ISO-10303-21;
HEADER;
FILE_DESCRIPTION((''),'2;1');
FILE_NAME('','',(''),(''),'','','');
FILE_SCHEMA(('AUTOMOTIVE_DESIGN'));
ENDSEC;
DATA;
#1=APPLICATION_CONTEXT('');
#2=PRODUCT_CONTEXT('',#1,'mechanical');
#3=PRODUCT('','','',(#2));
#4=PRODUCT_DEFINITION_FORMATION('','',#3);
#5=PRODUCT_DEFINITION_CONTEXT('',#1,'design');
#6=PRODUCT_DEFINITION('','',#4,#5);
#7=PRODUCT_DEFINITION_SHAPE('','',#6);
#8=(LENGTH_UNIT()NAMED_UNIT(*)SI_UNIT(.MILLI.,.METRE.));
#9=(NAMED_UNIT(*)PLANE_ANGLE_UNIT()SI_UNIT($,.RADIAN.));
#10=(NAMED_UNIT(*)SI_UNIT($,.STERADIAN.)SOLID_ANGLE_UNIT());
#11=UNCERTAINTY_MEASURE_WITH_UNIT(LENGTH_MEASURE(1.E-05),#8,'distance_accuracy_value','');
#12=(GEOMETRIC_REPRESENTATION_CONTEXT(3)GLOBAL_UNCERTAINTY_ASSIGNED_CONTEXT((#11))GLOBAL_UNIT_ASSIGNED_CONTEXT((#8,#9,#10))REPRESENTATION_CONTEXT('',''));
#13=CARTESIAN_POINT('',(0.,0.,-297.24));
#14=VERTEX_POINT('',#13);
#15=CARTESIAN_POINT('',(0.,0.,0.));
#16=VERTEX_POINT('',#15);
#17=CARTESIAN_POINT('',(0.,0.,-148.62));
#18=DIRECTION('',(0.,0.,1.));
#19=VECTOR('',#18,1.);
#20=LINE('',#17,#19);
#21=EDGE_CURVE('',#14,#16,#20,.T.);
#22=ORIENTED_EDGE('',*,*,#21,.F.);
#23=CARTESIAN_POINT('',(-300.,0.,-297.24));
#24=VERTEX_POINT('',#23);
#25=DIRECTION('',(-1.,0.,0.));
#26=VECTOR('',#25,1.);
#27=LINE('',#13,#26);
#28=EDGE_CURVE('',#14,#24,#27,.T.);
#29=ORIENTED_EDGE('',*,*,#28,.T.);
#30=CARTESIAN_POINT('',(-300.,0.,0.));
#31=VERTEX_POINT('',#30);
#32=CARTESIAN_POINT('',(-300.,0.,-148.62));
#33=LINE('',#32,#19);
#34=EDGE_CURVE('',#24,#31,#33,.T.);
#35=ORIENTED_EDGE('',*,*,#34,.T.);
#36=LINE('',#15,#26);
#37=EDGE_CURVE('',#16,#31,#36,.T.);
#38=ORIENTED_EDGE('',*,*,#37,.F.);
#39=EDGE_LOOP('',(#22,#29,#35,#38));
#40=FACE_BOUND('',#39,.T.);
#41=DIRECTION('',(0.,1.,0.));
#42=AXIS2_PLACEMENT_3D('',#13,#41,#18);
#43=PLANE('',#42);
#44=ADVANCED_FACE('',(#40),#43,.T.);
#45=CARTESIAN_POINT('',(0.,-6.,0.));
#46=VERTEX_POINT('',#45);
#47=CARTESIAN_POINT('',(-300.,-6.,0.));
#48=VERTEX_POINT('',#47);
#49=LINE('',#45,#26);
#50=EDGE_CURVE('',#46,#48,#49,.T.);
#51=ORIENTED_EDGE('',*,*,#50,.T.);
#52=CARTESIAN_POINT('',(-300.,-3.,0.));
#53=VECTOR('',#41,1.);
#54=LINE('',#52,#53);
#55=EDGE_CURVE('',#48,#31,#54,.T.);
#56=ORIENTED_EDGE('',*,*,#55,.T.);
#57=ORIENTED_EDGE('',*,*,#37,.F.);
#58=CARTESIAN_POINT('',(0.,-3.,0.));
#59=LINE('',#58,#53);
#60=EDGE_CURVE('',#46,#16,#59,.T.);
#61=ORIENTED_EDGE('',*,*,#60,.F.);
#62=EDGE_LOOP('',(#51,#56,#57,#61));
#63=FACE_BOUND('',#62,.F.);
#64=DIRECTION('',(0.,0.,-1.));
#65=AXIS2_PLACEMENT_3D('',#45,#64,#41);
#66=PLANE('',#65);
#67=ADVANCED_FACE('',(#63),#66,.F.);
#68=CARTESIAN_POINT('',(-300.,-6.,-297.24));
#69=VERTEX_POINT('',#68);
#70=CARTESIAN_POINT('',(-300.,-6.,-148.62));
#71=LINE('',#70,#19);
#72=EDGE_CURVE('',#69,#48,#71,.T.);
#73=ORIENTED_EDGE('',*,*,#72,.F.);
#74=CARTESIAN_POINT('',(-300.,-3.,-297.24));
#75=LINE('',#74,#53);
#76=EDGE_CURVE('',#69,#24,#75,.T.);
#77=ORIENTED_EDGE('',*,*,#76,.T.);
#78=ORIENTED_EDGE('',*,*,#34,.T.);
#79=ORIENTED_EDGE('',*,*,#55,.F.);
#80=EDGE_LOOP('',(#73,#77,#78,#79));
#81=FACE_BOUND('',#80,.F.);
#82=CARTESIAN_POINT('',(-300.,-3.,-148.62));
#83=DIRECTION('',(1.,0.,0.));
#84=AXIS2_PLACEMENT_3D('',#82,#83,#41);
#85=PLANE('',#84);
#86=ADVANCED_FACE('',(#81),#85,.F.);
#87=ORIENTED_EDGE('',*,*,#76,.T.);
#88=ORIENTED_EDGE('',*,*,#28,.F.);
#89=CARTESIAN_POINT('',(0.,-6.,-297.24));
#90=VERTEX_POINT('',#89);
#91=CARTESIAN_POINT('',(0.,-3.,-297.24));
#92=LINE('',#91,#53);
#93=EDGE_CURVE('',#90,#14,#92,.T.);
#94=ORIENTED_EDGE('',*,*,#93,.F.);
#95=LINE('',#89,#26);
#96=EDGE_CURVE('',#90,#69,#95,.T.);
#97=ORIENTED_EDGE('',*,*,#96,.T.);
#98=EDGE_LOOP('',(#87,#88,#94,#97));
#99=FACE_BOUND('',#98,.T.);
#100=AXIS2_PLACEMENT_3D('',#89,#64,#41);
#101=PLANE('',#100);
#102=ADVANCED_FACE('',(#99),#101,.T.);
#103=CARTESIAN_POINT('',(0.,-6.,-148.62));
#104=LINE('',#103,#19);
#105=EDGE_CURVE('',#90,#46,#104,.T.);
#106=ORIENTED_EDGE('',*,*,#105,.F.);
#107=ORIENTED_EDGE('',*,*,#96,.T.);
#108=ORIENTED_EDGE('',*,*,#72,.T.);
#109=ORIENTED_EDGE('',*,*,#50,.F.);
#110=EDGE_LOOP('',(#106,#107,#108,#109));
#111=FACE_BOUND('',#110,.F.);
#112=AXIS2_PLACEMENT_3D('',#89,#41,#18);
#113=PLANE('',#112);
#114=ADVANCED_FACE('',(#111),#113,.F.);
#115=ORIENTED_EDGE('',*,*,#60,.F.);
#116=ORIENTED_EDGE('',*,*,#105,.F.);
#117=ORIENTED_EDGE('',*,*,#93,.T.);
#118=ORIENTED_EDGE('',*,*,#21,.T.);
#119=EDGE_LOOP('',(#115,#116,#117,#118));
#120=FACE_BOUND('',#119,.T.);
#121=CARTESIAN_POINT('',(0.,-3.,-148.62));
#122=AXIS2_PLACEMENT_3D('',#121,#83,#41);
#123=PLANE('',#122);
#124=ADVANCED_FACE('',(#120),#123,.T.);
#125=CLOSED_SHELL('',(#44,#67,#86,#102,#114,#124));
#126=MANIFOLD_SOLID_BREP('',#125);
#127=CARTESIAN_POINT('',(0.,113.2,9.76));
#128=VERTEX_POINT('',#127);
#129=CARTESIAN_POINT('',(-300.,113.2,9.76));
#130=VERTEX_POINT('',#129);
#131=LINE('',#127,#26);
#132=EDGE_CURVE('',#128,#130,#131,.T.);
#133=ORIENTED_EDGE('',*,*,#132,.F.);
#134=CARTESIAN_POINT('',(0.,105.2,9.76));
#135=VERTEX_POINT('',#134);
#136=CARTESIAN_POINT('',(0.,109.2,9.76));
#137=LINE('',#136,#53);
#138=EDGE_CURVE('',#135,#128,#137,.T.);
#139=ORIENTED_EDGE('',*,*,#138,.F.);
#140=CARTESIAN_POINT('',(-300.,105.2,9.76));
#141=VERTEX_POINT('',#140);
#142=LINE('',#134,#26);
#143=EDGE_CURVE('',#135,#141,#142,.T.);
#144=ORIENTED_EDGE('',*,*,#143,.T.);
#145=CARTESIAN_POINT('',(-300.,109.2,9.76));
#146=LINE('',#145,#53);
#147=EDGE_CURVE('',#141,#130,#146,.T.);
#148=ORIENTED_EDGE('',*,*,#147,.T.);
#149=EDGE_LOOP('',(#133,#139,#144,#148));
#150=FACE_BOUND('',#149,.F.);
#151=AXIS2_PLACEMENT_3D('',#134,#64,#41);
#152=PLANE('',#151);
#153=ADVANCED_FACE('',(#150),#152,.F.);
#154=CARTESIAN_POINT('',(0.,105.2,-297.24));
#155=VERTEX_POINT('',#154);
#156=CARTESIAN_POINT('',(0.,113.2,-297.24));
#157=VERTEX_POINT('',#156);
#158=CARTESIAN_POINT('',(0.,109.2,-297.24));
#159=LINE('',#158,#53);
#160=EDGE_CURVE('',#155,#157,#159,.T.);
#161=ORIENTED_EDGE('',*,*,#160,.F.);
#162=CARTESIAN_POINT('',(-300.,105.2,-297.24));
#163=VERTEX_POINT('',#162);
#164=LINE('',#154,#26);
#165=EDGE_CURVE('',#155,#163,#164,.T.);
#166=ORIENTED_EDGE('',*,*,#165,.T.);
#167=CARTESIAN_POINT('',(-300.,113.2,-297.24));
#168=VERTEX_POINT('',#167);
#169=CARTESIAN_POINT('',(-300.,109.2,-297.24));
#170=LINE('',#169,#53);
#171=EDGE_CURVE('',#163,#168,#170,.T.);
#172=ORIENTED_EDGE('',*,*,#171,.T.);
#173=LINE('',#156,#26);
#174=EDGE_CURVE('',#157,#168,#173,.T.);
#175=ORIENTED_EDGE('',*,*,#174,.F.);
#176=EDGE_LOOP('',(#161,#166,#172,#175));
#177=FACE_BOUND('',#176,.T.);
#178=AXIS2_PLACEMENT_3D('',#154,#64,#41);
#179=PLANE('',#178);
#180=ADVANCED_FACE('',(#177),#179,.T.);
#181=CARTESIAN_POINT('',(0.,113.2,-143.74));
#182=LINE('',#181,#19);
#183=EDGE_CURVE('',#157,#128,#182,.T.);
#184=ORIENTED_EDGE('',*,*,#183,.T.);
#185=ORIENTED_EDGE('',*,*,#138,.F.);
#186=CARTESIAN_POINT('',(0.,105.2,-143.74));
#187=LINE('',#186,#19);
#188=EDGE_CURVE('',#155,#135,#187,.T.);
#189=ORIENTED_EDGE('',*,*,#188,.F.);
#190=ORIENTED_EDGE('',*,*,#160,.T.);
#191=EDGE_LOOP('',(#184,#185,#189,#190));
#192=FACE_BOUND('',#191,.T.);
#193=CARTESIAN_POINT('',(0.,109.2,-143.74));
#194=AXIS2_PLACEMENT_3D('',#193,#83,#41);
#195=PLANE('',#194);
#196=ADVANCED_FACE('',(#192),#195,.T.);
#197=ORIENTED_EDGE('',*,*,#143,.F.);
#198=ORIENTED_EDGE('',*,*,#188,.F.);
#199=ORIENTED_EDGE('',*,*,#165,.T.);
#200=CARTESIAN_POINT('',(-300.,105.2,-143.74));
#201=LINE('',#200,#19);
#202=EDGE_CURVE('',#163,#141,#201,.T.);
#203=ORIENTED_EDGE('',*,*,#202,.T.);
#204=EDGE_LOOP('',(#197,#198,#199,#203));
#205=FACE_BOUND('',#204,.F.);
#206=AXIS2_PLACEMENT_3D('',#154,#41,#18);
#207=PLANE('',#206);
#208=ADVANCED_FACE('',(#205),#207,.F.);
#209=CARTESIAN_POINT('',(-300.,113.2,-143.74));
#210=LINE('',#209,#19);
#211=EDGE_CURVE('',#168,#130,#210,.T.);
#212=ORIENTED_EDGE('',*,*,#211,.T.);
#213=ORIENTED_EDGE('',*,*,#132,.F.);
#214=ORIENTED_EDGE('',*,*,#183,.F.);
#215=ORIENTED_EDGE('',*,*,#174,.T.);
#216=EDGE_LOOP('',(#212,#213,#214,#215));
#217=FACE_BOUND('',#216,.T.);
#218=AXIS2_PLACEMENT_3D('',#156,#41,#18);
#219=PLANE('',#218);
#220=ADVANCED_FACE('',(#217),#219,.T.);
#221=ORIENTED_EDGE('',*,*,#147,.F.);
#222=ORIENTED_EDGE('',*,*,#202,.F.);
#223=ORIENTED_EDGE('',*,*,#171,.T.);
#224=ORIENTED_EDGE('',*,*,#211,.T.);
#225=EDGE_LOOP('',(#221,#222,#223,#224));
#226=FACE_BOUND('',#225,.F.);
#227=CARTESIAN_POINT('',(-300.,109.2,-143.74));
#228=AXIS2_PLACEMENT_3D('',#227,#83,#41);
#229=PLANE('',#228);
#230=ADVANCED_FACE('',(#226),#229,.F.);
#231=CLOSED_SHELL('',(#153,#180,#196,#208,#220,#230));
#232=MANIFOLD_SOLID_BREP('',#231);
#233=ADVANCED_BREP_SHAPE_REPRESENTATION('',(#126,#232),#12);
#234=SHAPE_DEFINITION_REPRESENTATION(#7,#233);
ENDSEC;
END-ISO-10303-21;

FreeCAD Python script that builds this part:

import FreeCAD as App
import Part
import Sketcher

V = App.Vector


def add_polygon(sketch, points):
    """Adds a closed chain of lines whose ends are joined by coincident constraints."""
    first, n = sketch.GeometryCount, len(points)
    for a, b in zip(points, points[1:] + points[:1]):
        sketch.addGeometry(Part.LineSegment(App.Vector(*a, 0), App.Vector(*b, 0)), False)
    for i in range(n):
        sketch.addConstraint(Sketcher.Constraint("Coincident", first + i, 2, first + (i + 1) % n, 1))

doc = App.newDocument("Part")
body = doc.addObject("PartDesign::Body", "Body")
body.AllowCompound = True

sketch1 = doc.addObject("Sketcher::SketchObject", "Sketch")
body.addObject(sketch1)
sketch1.AttachmentSupport = (doc.YZ_Plane, [""])
sketch1.MapMode = "FlatFace"
add_polygon(sketch1, [(105, 10), (105, -297), (113, -297), (113, 10)])
add_polygon(sketch1, [(-6, 0), (-6, -297), (0, -297), (0, 0)])
sketch1.addConstraint([
    Sketcher.Constraint("Vertical", 0),
    Sketcher.Constraint("Horizontal", 1),
    Sketcher.Constraint("Vertical", 2),
    Sketcher.Constraint("Horizontal", 3),
    Sketcher.Constraint("Vertical", 4),
    Sketcher.Constraint("Horizontal", 5),
    Sketcher.Constraint("Vertical", 6),
    Sketcher.Constraint("Horizontal", 7),
    Sketcher.Constraint("Coincident", 6, 2, -1, 1),
    Sketcher.Constraint("Horizontal", 1, 2, 4, 2),
    Sketcher.Constraint("DistanceX", 1, 1, 1, 2, 8.0),
    Sketcher.Constraint("DistanceX", 5, 1, 5, 2, 6.0),
    Sketcher.Constraint("DistanceY", 0, 2, 0, 1, 307.0),
    Sketcher.Constraint("DistanceY", 4, 2, 4, 1, 297.24),
    Sketcher.Constraint("DistanceX", -1, 1, 0, 2, 105.2),
])
pad1 = doc.addObject("PartDesign::Pad", "Pad")
body.addObject(pad1)
pad1.Profile = sketch1
pad1.Length = 300
pad1.Reversed = True

doc.recompute()
